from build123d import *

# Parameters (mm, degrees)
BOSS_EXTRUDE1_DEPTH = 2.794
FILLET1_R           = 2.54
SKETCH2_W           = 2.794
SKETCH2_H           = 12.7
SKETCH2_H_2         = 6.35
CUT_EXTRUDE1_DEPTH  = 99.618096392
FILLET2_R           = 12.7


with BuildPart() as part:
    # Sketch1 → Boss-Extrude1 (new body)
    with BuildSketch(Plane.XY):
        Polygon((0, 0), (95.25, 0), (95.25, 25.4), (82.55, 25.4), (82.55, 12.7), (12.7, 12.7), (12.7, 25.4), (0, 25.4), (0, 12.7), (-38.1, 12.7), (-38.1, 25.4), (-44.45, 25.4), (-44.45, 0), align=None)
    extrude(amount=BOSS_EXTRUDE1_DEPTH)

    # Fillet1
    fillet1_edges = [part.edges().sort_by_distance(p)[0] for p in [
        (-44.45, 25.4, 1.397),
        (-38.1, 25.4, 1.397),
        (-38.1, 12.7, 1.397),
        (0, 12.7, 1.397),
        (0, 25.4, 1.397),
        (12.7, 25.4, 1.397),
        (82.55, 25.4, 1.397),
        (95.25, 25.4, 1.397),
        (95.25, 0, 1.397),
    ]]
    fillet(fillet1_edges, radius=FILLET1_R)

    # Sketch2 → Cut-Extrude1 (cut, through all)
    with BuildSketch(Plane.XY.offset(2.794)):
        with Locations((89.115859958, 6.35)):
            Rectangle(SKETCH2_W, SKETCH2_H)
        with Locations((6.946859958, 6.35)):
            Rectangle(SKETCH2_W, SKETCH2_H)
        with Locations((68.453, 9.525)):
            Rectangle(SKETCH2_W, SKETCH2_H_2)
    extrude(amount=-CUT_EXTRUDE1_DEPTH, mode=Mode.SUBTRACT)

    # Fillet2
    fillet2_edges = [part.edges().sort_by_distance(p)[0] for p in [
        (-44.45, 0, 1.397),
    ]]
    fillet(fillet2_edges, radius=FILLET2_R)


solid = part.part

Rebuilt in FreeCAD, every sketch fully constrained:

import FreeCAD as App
import Part
import Sketcher
Q = App.Units.Quantity


def edges_at(feature, points):
    """Names of the edges that pass closest to the given points."""
    edges = feature.Shape.Edges
    near = lambda p: min(range(len(edges)), key=lambda i: edges[i].distToShape(Part.Vertex(*p))[0])
    return sorted({f"Edge{near(p) + 1}" for p in points})

doc = App.newDocument("Part")
body = doc.addObject("PartDesign::Body", "Body")

sketch1 = body.newObject("Sketcher::SketchObject", "Sketch")
sketch1.AttachmentSupport = (doc.getObject("XY_Plane"), [""])
sketch1.MapMode = "FlatFace"
sketch1.addGeometry(Part.LineSegment(App.Vector(95, 0, 0), App.Vector(95, 25, 0)), False)
sketch1.addGeometry(Part.LineSegment(App.Vector(95, 25, 0), App.Vector(83, 25, 0)), False)
sketch1.addGeometry(Part.LineSegment(App.Vector(83, 25, 0), App.Vector(83, 13, 0)), False)
sketch1.addGeometry(Part.LineSegment(App.Vector(83, 13, 0), App.Vector(13, 13, 0)), False)
sketch1.addGeometry(Part.LineSegment(App.Vector(13, 13, 0), App.Vector(13, 25, 0)), False)
sketch1.addGeometry(Part.LineSegment(App.Vector(13, 25, 0), App.Vector(0, 25, 0)), False)
sketch1.addGeometry(Part.LineSegment(App.Vector(0, 25, 0), App.Vector(0, 13, 0)), False)
sketch1.addGeometry(Part.LineSegment(App.Vector(0, 13, 0), App.Vector(-38, 13, 0)), False)
sketch1.addGeometry(Part.LineSegment(App.Vector(-38, 13, 0), App.Vector(-38, 25, 0)), False)
sketch1.addGeometry(Part.LineSegment(App.Vector(-38, 25, 0), App.Vector(-44, 25, 0)), False)
sketch1.addGeometry(Part.LineSegment(App.Vector(-44, 25, 0), App.Vector(-44, 0, 0)), False)
sketch1.addGeometry(Part.LineSegment(App.Vector(-44, 0, 0), App.Vector(95, 0, 0)), False)
sketch1.addConstraint(Sketcher.Constraint("Coincident", 0, 2, 1, 1))
sketch1.addConstraint(Sketcher.Constraint("Coincident", 1, 2, 2, 1))
sketch1.addConstraint(Sketcher.Constraint("Coincident", 2, 2, 3, 1))
sketch1.addConstraint(Sketcher.Constraint("Coincident", 3, 2, 4, 1))
sketch1.addConstraint(Sketcher.Constraint("Coincident", 4, 2, 5, 1))
sketch1.addConstraint(Sketcher.Constraint("Coincident", 5, 2, 6, 1))
sketch1.addConstraint(Sketcher.Constraint("Coincident", 6, 2, 7, 1))
sketch1.addConstraint(Sketcher.Constraint("Coincident", 7, 2, 8, 1))
sketch1.addConstraint(Sketcher.Constraint("Coincident", 8, 2, 9, 1))
sketch1.addConstraint(Sketcher.Constraint("Coincident", 9, 2, 10, 1))
sketch1.addConstraint(Sketcher.Constraint("Coincident", 10, 2, 11, 1))
sketch1.addConstraint(Sketcher.Constraint("Coincident", 11, 2, 0, 1))
sketch1.addConstraint(Sketcher.Constraint("Vertical", 0))
sketch1.addConstraint(Sketcher.Constraint("Horizontal", 1))
sketch1.addConstraint(Sketcher.Constraint("Vertical", 2))
sketch1.addConstraint(Sketcher.Constraint("Horizontal", 3))
sketch1.addConstraint(Sketcher.Constraint("Vertical", 4))
sketch1.addConstraint(Sketcher.Constraint("Horizontal", 5))
sketch1.addConstraint(Sketcher.Constraint("Vertical", 6))
sketch1.addConstraint(Sketcher.Constraint("Horizontal", 7))
sketch1.addConstraint(Sketcher.Constraint("Vertical", 8))
sketch1.addConstraint(Sketcher.Constraint("Horizontal", 9))
sketch1.addConstraint(Sketcher.Constraint("Vertical", 10))
sketch1.addConstraint(Sketcher.Constraint("Horizontal", 11))
sketch1.addConstraint(Sketcher.Constraint("PointOnObject", 5, 2, -2))
sketch1.addConstraint(Sketcher.Constraint("PointOnObject", 10, 2, -1))
sketch1.addConstraint(Sketcher.Constraint("Horizontal", 1, 2, 4, 2))
sketch1.addConstraint(Sketcher.Constraint("Horizontal", 3, 2, 6, 2))
sketch1.addConstraint(Sketcher.Constraint("Horizontal", 5, 2, 8, 2))
sketch1.addConstraint(Sketcher.Constraint("Equal", 1, 5))
sketch1.addConstraint(Sketcher.Constraint("Equal", 5, 2))
sketch1.addConstraint(Sketcher.Constraint("DistanceY", 0, 1, 0, 2, Q("1 in")))
sketch1.addConstraint(Sketcher.Constraint("DistanceX", 1, 2, 1, 1, Q("0.5 in")))
sketch1.addConstraint(Sketcher.Constraint("DistanceX", 7, 2, 7, 1, Q("1.5 in")))
sketch1.addConstraint(Sketcher.Constraint("DistanceX", 11, 1, 11, 2, Q("5.5 in")))
sketch1.addConstraint(Sketcher.Constraint("DistanceX", 3, 2, 3, 1, Q("2.75 in")))
pad1 = body.newObject("PartDesign::Pad", "Pad")
pad1.Profile = sketch1
pad1.Length = Q("0.11 in")
doc.recompute()

fillet = body.newObject("PartDesign::Fillet", "Fillet")
fillet.Base = (pad1, edges_at(pad1, [
    (-44.45, 25.4, 1.397),
    (-38.1, 25.4, 1.397),
    (-38.1, 12.7, 1.397),
    (0, 12.7, 1.397),
    (0, 25.4, 1.397),
    (12.7, 25.4, 1.397),
    (82.55, 25.4, 1.397),
    (95.25, 25.4, 1.397),
    (95.25, 0, 1.397),
]))
fillet.Radius = Q("0.1 in")

sketch2 = body.newObject("Sketcher::SketchObject", "Sketch001")
sketch2.AttachmentSupport = (doc.getObject("XY_Plane"), [""])
sketch2.MapMode = "FlatFace"
sketch2.AttachmentOffset = App.Placement(App.Vector(0, 0, 0.11 * 25.4), App.Rotation())
sketch2.addGeometry(Part.LineSegment(App.Vector(87.7, 12.7, 0), App.Vector(87.7, 0, 0)), False)
sketch2.addGeometry(Part.LineSegment(App.Vector(87.7, 0, 0), App.Vector(90.5, 0, 0)), False)
sketch2.addGeometry(Part.LineSegment(App.Vector(90.5, 0, 0), App.Vector(90.5, 12.7, 0)), False)
sketch2.addGeometry(Part.LineSegment(App.Vector(90.5, 12.7, 0), App.Vector(87.7, 12.7, 0)), False)
sketch2.addGeometry(Part.LineSegment(App.Vector(5.5, 12.7, 0), App.Vector(5.5, 0, 0)), False)
sketch2.addGeometry(Part.LineSegment(App.Vector(5.5, 0, 0), App.Vector(8.3, 0, 0)), False)
sketch2.addGeometry(Part.LineSegment(App.Vector(8.3, 0, 0), App.Vector(8.3, 12.7, 0)), False)
sketch2.addGeometry(Part.LineSegment(App.Vector(8.3, 12.7, 0), App.Vector(5.5, 12.7, 0)), False)
sketch2.addGeometry(Part.LineSegment(App.Vector(67.1, 12.7, 0), App.Vector(67.1, 6.3, 0)), False)
sketch2.addGeometry(Part.LineSegment(App.Vector(67.1, 6.3, 0), App.Vector(69.8, 6.3, 0)), False)
sketch2.addGeometry(Part.LineSegment(App.Vector(69.8, 6.3, 0), App.Vector(69.8, 12.7, 0)), False)
sketch2.addGeometry(Part.LineSegment(App.Vector(69.8, 12.7, 0), App.Vector(67.1, 12.7, 0)), False)
sketch2.addConstraint(Sketcher.Constraint("Coincident", 0, 2, 1, 1))
sketch2.addConstraint(Sketcher.Constraint("Coincident", 1, 2, 2, 1))
sketch2.addConstraint(Sketcher.Constraint("Coincident", 2, 2, 3, 1))
sketch2.addConstraint(Sketcher.Constraint("Coincident", 3, 2, 0, 1))
sketch2.addConstraint(Sketcher.Constraint("Coincident", 4, 2, 5, 1))
sketch2.addConstraint(Sketcher.Constraint("Coincident", 5, 2, 6, 1))
sketch2.addConstraint(Sketcher.Constraint("Coincident", 6, 2, 7, 1))
sketch2.addConstraint(Sketcher.Constraint("Coincident", 7, 2, 4, 1))
sketch2.addConstraint(Sketcher.Constraint("Coincident", 8, 2, 9, 1))
sketch2.addConstraint(Sketcher.Constraint("Coincident", 9, 2, 10, 1))
sketch2.addConstraint(Sketcher.Constraint("Coincident", 10, 2, 11, 1))
sketch2.addConstraint(Sketcher.Constraint("Coincident", 11, 2, 8, 1))
sketch2.addConstraint(Sketcher.Constraint("Vertical", 0))
sketch2.addConstraint(Sketcher.Constraint("Horizontal", 1))
sketch2.addConstraint(Sketcher.Constraint("Vertical", 2))
sketch2.addConstraint(Sketcher.Constraint("Horizontal", 3))
sketch2.addConstraint(Sketcher.Constraint("Vertical", 4))
sketch2.addConstraint(Sketcher.Constraint("Horizontal", 5))
sketch2.addConstraint(Sketcher.Constraint("Vertical", 6))
sketch2.addConstraint(Sketcher.Constraint("Horizontal", 7))
sketch2.addConstraint(Sketcher.Constraint("Vertical", 8))
sketch2.addConstraint(Sketcher.Constraint("Horizontal", 9))
sketch2.addConstraint(Sketcher.Constraint("Vertical", 10))
sketch2.addConstraint(Sketcher.Constraint("Horizontal", 11))
sketch2.addConstraint(Sketcher.Constraint("PointOnObject", 0, 2, -1))
sketch2.addConstraint(Sketcher.Constraint("PointOnObject", 4, 2, -1))
sketch2.addConstraint(Sketcher.Constraint("Horizontal", 3, 2, 6, 2))
sketch2.addConstraint(Sketcher.Constraint("Horizontal", 7, 2, 10, 2))
sketch2.addConstraint(Sketcher.Constraint("Equal", 3, 5))
sketch2.addConstraint(Sketcher.Constraint("Equal", 7, 9))
sketch2.addConstraint(Sketcher.Constraint("DistanceY", 0, 2, 0, 1, Q("0.5 in")))
sketch2.addConstraint(Sketcher.Constraint("DistanceX", 1, 1, 1, 2, Q("0.11 in")))
sketch2.addConstraint(Sketcher.Constraint("DistanceY", 8, 2, 8, 1, Q("0.25 in")))
sketch2.addConstraint(Sketcher.Constraint("DistanceX", -1, 1, 8, 2, Q("2.64 in")))
sketch2.addConstraint(Sketcher.Constraint("DistanceX", 4, 2, 0, 2, Q("3.235 in")))
sketch2.addConstraint(Sketcher.Constraint("DistanceX", -1, 1, 0, 2, Q("87.71886 mm")))
pocket1 = body.newObject("PartDesign::Pocket", "Pocket")
pocket1.Profile = sketch2
pocket1.Type = "ThroughAll"
doc.recompute()

fillet2 = body.newObject("PartDesign::Fillet", "Fillet001")
fillet2.Base = (pocket1, edges_at(pocket1, [(-44.45, 0, 1.397)]))
fillet2.Radius = Q("0.5 in")

doc.recompute()
